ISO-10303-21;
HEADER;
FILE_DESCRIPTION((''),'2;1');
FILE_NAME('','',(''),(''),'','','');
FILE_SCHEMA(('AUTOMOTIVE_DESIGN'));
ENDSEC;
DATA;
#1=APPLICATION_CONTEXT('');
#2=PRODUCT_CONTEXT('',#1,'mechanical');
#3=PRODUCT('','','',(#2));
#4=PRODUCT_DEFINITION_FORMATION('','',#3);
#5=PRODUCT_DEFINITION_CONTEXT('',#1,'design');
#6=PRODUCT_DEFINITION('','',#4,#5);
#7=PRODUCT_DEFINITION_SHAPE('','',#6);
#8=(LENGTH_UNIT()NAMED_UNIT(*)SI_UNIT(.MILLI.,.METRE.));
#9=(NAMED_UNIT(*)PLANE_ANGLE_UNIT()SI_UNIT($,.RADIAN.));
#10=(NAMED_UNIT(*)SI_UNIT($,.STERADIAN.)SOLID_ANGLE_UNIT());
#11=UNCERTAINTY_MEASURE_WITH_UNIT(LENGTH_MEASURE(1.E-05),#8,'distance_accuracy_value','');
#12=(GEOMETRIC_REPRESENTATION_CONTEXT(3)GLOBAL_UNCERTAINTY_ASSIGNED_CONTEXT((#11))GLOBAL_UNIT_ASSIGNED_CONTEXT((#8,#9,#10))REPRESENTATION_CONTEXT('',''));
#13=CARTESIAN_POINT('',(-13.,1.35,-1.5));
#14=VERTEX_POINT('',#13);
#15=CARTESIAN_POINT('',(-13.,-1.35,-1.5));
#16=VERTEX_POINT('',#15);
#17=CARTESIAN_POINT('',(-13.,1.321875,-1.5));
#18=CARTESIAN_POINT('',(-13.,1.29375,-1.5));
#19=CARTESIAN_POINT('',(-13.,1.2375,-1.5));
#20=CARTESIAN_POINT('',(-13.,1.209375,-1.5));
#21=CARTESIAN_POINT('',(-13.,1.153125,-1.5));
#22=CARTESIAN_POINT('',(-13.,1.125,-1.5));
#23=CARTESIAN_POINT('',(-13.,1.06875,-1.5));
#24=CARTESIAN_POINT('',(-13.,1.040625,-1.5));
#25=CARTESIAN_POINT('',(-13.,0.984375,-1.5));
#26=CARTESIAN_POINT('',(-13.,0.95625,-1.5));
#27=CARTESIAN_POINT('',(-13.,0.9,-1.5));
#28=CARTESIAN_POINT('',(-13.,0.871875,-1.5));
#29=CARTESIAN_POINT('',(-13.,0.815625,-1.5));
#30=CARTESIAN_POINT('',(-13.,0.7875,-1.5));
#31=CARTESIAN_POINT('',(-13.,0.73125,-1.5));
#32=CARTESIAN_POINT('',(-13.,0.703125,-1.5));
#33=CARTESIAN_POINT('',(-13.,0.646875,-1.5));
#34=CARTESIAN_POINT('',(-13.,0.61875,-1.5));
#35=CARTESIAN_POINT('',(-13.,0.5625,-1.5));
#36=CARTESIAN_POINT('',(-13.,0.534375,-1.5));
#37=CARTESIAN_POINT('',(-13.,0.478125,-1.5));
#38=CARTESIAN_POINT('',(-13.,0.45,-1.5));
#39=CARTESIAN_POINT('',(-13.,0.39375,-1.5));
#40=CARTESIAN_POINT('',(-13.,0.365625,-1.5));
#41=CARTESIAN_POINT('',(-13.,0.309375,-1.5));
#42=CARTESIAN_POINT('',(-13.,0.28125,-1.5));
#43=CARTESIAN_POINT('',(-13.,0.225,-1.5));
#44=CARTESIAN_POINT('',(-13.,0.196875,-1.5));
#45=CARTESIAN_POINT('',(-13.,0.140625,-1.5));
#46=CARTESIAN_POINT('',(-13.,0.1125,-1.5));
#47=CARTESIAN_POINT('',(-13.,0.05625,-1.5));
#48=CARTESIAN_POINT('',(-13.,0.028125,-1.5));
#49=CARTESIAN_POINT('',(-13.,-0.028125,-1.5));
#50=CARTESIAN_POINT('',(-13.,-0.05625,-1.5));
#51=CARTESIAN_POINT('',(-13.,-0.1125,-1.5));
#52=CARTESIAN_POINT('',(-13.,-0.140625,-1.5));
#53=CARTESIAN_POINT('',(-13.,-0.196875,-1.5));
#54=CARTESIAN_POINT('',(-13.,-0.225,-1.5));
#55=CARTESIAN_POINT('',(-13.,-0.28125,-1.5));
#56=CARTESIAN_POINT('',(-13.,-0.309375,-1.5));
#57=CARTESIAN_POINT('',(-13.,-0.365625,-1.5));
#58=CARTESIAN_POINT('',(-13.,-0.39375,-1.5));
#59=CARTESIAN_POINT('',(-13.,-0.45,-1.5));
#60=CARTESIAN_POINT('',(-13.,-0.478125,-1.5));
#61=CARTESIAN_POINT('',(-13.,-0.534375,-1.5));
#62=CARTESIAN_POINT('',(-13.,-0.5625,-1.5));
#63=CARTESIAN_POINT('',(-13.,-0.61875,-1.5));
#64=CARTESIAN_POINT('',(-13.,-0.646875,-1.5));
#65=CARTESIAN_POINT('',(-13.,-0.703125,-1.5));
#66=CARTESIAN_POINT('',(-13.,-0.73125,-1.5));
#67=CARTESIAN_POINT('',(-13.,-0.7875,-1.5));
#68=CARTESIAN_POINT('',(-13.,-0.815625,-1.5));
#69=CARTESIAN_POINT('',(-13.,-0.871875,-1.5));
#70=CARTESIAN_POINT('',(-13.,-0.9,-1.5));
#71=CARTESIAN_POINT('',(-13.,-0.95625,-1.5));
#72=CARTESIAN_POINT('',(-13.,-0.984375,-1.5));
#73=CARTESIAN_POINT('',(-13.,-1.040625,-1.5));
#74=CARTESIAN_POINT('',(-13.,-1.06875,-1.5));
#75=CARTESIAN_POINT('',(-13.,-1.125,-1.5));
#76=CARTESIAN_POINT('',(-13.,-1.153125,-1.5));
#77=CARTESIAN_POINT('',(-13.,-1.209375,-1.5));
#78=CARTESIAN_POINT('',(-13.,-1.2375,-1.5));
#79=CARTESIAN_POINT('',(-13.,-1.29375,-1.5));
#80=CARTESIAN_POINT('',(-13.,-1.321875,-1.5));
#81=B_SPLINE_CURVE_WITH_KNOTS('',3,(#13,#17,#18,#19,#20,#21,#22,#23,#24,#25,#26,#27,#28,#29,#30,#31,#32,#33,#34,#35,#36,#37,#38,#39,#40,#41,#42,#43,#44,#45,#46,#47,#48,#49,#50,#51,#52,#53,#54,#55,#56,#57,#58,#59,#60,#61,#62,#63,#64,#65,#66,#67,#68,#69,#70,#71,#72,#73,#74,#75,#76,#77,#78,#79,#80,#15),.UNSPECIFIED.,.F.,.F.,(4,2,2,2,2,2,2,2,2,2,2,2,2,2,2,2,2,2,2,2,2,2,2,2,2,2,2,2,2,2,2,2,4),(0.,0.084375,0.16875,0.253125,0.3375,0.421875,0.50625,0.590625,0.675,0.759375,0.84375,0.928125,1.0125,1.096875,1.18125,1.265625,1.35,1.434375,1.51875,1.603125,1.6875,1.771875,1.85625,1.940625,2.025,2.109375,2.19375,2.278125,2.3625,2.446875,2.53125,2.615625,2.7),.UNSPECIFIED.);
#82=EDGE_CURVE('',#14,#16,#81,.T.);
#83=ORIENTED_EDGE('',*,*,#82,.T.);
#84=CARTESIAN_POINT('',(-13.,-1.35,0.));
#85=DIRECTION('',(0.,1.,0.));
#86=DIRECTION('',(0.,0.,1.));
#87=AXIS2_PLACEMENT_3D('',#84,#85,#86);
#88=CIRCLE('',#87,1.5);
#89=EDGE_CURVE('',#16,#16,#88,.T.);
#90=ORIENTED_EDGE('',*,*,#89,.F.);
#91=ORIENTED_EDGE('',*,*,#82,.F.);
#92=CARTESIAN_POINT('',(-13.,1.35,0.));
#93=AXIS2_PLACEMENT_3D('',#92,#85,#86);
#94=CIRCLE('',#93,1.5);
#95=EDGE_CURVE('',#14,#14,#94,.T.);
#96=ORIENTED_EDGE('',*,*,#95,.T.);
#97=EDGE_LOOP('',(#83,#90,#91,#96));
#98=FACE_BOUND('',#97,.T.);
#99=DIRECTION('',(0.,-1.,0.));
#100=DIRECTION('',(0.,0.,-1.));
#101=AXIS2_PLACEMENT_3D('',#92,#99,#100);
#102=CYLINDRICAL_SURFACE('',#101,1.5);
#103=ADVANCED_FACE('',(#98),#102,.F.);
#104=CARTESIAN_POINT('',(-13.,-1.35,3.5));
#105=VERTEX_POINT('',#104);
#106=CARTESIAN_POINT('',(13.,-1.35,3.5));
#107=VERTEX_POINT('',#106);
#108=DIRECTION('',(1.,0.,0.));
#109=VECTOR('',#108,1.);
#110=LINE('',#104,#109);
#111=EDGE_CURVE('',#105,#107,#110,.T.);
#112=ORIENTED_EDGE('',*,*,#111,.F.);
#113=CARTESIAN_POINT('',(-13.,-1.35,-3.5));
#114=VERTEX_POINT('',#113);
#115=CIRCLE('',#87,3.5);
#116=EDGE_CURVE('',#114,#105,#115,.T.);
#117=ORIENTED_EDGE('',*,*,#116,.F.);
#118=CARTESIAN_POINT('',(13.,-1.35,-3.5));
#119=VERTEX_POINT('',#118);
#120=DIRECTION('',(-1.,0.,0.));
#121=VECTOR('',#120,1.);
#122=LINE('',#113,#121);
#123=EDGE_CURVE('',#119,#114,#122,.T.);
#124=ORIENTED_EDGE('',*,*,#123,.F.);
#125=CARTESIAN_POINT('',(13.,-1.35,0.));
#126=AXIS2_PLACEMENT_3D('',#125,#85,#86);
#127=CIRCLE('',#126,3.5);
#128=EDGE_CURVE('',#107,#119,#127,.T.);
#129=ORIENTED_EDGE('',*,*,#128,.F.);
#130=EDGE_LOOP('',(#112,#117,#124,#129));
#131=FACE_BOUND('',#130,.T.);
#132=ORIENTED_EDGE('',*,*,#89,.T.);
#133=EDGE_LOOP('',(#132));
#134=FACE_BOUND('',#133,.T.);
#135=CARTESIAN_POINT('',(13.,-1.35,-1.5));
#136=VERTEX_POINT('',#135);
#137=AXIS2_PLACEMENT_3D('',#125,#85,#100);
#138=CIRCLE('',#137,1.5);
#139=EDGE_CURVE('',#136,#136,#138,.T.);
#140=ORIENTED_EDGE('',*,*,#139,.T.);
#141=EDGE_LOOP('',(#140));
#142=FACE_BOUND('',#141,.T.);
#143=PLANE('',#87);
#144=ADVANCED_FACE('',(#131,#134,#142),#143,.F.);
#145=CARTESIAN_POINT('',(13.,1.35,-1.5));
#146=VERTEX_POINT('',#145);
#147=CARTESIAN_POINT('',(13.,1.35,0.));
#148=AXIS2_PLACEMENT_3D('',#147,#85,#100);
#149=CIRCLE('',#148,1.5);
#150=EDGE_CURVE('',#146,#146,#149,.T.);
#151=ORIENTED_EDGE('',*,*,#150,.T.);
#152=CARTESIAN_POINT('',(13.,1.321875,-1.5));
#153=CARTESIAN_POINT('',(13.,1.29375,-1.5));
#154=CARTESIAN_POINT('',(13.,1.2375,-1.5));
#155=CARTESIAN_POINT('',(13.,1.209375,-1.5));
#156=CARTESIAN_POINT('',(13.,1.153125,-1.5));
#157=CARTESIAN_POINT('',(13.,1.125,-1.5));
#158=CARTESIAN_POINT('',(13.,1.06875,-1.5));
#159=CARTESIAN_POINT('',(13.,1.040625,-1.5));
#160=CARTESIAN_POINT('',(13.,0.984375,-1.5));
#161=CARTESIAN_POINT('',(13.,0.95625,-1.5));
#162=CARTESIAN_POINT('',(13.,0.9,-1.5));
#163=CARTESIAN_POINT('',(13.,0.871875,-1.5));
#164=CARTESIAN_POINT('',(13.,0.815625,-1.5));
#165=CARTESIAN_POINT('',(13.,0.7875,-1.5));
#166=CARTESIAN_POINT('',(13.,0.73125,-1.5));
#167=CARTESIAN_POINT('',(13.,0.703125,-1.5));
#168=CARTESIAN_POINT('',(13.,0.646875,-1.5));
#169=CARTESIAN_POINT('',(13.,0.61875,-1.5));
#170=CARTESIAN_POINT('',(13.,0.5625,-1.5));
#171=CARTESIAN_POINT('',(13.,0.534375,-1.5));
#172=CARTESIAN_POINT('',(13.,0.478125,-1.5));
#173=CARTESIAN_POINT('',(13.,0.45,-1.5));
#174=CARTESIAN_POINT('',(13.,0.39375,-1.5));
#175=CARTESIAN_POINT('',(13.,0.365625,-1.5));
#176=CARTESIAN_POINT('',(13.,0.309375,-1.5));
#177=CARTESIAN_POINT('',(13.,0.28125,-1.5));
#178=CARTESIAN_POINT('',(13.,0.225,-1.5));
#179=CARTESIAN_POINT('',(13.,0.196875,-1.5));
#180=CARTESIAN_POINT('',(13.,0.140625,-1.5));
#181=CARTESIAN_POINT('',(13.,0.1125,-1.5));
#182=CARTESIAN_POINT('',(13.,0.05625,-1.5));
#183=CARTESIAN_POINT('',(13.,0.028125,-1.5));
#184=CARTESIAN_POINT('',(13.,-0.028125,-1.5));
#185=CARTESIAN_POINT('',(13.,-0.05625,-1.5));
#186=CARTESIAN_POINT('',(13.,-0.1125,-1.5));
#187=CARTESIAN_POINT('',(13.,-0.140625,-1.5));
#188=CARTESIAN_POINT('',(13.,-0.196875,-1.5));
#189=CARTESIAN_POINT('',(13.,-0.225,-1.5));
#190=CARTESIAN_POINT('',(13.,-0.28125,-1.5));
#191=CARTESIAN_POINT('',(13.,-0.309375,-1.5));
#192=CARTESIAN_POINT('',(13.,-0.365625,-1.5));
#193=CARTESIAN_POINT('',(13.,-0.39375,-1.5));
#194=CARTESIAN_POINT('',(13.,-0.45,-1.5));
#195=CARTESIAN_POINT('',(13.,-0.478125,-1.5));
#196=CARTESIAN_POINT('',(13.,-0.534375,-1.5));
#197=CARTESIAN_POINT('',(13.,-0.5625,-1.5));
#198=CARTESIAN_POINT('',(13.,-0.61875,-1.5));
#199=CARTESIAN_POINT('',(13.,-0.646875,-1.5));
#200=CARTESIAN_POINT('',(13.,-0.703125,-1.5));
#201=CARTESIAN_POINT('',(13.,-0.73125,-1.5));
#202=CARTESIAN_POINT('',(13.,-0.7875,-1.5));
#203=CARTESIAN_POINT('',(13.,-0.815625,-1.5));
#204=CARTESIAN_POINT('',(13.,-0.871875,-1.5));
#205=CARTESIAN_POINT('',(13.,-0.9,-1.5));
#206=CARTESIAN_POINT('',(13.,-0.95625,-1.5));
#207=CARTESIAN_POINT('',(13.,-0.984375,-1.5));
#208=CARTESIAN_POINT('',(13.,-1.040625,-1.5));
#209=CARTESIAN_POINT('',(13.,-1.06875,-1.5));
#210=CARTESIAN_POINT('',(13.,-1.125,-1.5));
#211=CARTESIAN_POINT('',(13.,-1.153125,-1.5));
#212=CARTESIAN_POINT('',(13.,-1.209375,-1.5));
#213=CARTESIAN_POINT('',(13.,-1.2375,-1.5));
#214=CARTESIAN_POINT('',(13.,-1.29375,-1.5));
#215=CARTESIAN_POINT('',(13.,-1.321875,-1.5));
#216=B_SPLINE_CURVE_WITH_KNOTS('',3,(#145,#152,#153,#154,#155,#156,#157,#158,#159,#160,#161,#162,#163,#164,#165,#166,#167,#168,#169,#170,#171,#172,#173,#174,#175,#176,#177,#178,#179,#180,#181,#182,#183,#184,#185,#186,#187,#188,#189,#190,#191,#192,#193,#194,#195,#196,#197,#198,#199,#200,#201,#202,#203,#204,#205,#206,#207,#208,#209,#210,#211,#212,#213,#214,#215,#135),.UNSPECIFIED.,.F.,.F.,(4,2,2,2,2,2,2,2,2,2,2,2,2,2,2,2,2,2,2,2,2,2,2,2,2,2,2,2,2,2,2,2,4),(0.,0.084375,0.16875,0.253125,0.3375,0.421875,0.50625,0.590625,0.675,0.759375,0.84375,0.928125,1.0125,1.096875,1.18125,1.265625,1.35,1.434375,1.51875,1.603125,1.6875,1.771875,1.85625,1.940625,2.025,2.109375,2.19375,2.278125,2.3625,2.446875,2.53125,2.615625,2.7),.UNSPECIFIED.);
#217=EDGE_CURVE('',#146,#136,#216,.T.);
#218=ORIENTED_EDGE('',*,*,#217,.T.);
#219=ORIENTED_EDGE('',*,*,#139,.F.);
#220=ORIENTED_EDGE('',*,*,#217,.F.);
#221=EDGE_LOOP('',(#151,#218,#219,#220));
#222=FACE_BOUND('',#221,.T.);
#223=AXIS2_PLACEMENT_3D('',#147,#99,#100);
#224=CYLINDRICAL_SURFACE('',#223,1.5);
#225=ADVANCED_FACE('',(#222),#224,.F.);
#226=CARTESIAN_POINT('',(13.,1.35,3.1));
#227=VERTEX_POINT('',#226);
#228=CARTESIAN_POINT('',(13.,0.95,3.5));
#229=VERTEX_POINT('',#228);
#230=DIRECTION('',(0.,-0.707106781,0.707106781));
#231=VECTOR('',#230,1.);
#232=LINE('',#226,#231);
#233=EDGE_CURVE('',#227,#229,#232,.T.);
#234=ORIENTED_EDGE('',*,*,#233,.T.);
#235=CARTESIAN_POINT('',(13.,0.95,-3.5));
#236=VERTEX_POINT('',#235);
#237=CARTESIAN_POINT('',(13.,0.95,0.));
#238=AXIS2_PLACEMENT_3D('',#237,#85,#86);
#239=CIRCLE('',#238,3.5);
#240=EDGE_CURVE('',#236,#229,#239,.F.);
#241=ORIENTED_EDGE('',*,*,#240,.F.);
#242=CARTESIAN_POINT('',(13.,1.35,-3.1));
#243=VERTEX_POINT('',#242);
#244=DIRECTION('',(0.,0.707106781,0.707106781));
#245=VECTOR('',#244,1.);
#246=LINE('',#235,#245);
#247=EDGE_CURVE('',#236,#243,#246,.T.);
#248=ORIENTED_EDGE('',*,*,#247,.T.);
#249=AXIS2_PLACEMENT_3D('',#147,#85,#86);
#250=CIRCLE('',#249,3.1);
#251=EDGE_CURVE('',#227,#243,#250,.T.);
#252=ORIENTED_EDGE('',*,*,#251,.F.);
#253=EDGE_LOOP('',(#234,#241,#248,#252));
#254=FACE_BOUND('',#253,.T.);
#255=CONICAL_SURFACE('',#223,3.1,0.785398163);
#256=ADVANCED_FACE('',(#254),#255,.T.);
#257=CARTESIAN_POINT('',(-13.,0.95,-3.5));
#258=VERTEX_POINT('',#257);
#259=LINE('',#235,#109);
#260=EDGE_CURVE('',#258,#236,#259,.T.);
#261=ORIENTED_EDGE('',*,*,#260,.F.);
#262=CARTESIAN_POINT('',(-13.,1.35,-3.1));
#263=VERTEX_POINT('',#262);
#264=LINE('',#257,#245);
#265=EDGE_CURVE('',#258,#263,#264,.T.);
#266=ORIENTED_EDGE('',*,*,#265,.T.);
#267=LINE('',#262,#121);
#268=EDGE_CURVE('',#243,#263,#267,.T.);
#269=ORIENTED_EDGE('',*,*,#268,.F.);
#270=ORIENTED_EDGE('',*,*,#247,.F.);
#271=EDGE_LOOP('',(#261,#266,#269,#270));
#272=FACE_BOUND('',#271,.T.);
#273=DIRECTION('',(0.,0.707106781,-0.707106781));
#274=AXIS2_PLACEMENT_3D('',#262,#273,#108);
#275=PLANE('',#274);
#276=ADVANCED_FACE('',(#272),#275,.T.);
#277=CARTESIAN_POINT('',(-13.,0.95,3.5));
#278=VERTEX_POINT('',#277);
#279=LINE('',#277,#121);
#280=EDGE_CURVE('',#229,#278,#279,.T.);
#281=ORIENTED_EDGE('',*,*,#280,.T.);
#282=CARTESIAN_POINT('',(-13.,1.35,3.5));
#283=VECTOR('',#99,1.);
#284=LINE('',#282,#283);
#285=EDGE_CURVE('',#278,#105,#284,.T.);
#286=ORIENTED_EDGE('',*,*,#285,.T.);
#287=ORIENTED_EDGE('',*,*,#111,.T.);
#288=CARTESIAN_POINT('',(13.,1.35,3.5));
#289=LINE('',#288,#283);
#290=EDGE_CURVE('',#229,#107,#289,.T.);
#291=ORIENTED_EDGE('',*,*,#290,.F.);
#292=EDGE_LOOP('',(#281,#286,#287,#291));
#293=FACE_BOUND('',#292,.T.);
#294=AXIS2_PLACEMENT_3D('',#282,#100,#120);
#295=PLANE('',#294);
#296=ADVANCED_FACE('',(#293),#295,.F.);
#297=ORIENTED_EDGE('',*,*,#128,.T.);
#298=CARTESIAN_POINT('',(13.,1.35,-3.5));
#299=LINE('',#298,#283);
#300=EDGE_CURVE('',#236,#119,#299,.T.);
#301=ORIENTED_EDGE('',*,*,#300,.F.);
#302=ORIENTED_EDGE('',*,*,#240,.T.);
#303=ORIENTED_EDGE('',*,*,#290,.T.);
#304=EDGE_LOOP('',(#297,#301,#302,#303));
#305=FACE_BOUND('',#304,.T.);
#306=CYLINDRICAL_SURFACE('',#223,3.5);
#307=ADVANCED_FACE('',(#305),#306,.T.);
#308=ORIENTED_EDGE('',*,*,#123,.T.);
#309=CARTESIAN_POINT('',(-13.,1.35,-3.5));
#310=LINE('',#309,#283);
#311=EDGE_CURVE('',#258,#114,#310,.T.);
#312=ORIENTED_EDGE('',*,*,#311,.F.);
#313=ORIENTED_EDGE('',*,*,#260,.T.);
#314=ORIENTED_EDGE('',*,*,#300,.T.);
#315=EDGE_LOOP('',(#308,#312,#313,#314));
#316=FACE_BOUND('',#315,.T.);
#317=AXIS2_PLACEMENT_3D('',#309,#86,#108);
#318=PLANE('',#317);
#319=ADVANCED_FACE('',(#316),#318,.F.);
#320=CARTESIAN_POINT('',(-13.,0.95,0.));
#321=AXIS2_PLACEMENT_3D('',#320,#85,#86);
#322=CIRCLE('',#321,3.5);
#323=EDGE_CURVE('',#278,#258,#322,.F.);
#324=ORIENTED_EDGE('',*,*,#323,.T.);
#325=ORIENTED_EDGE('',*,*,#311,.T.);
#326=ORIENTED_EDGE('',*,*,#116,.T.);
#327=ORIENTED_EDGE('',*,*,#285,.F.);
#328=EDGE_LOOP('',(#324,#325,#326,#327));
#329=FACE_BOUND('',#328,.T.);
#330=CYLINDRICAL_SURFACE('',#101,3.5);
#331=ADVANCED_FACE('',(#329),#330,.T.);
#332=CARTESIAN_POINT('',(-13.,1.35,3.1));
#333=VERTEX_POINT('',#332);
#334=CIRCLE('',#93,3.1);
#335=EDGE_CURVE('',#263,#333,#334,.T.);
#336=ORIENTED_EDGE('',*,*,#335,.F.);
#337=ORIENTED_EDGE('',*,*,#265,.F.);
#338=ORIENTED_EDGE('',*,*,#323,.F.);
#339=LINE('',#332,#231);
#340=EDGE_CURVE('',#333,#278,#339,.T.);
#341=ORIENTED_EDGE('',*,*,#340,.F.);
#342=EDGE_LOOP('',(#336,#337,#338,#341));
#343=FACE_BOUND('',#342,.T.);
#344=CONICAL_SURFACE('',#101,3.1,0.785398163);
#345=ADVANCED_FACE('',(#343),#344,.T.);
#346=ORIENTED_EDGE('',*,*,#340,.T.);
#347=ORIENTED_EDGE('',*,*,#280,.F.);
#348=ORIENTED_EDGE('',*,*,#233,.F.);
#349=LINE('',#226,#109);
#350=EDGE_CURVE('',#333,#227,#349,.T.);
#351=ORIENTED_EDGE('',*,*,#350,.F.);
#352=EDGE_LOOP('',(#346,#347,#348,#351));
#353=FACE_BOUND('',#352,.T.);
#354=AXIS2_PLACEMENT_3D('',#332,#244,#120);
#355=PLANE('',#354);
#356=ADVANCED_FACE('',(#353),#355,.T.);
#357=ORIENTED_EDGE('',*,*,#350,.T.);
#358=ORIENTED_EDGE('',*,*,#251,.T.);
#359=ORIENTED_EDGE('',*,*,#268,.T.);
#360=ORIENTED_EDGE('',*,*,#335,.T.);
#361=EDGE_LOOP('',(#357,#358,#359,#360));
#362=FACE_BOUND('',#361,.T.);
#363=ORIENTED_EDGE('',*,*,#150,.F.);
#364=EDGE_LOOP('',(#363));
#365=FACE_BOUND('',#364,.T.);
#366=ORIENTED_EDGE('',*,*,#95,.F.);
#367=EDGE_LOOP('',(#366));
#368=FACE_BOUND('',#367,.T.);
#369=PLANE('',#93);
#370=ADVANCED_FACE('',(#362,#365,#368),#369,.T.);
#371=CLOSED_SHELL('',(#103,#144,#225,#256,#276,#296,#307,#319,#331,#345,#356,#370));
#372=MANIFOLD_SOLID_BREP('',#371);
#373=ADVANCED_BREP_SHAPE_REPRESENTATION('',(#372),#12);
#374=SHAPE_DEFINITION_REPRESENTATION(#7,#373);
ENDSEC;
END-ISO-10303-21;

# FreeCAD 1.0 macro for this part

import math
import FreeCAD as App
import Part
import Sketcher
from FreeCAD import Vector


def edges_at(feature, points):
    """Names of the edges that pass closest to the given points."""
    edges = feature.Shape.Edges
    near = lambda p: min(range(len(edges)), key=lambda i: edges[i].distToShape(Part.Vertex(*p))[0])
    return sorted({f"Edge{near(p) + 1}" for p in points})

doc = App.newDocument("Part")
params = doc.addObject("Spreadsheet::Sheet", "Params")
for row, (alias, value) in enumerate([
    ("sketch1_diameter", "3 mm"),
    ("sketch1_radius", "3.5 mm"),
    ("sketch1_width", "26 mm"),
    ("pad1_length", "2.7 mm"),
    ("chamfer_size", "0.4 mm"),
], start=1):
    params.set(f"A{row}", alias)
    params.set(f"B{row}", "=" + value)
    params.setAlias(f"B{row}", alias)

body = doc.addObject("PartDesign::Body", "Body")

# Sketch on XZ plane
sketch1 = body.newObject("Sketcher::SketchObject", "Sketch")
sketch1.AttachmentSupport = (doc.getObject("XZ_Plane"), [""])
sketch1.MapMode = "FlatFace"
sketch1.addGeometry([
    Part.LineSegment(Vector(13, -3.5, 0), Vector(-13, -3.5, 0)),  # 0
    Part.ArcOfCircle(Part.Circle(Vector(-13, 0, 0), Vector(0, 0, 1), 3.5), math.radians(90), math.radians(270)),  # 1
    Part.LineSegment(Vector(-13, 3.5, 0), Vector(13, 3.5, 0)),  # 2
    Part.ArcOfCircle(Part.Circle(Vector(13, 0, 0), Vector(0, 0, 1), 3.5), math.radians(-90), math.radians(90)),  # 3
    Part.Circle(Vector(13, 0, 0), Vector(0, 0, 1), 1.5),  # 4
    Part.Circle(Vector(-13, 0, 0), Vector(0, 0, 1), 1.5),  # 5
], False)
sketch1.addConstraint([
    Sketcher.Constraint("Tangent", 0, 2, 1, 2),
    Sketcher.Constraint("Tangent", 1, 1, 2, 1),
    Sketcher.Constraint("Tangent", 2, 2, 3, 2),
    Sketcher.Constraint("Tangent", 3, 1, 0, 1),
    Sketcher.Constraint("Horizontal", 0),
    Sketcher.Constraint("Horizontal", 2),
    Sketcher.Constraint("Coincident", 4, 3, 3, 3),
    Sketcher.Constraint("Coincident", 5, 3, 1, 3),
    Sketcher.Constraint("Equal", 4, 5),
    Sketcher.Constraint("Symmetric", 1, 3, 3, 3, -1, 1),
    Sketcher.Constraint("Diameter", 4, 3.0),
    Sketcher.Constraint("Radius", 1, 3.5),
    Sketcher.Constraint("DistanceX", 0, 2, 0, 1, 26.0),
])
sketch1.setExpression("Constraints[10]", "Params.sketch1_diameter")
sketch1.setExpression("Constraints[11]", "Params.sketch1_radius")
sketch1.setExpression("Constraints[12]", "Params.sketch1_width")
pad1 = body.newObject("PartDesign::Pad", "Pad")
pad1.Profile = sketch1
pad1.setExpression("Length", "Params.pad1_length")
pad1.Midplane = True
doc.recompute()

chamfer = body.newObject("PartDesign::Chamfer", "Chamfer")
chamfer.Base = (pad1, edges_at(pad1, [
    (16.5, 1.35, 0),
    (0, 1.35, -3.5),
    (-16.5, 1.35, 0),
    (0, 1.35, 3.5),
]))
chamfer.setExpression("Size", "Params.chamfer_size")

doc.recompute()
